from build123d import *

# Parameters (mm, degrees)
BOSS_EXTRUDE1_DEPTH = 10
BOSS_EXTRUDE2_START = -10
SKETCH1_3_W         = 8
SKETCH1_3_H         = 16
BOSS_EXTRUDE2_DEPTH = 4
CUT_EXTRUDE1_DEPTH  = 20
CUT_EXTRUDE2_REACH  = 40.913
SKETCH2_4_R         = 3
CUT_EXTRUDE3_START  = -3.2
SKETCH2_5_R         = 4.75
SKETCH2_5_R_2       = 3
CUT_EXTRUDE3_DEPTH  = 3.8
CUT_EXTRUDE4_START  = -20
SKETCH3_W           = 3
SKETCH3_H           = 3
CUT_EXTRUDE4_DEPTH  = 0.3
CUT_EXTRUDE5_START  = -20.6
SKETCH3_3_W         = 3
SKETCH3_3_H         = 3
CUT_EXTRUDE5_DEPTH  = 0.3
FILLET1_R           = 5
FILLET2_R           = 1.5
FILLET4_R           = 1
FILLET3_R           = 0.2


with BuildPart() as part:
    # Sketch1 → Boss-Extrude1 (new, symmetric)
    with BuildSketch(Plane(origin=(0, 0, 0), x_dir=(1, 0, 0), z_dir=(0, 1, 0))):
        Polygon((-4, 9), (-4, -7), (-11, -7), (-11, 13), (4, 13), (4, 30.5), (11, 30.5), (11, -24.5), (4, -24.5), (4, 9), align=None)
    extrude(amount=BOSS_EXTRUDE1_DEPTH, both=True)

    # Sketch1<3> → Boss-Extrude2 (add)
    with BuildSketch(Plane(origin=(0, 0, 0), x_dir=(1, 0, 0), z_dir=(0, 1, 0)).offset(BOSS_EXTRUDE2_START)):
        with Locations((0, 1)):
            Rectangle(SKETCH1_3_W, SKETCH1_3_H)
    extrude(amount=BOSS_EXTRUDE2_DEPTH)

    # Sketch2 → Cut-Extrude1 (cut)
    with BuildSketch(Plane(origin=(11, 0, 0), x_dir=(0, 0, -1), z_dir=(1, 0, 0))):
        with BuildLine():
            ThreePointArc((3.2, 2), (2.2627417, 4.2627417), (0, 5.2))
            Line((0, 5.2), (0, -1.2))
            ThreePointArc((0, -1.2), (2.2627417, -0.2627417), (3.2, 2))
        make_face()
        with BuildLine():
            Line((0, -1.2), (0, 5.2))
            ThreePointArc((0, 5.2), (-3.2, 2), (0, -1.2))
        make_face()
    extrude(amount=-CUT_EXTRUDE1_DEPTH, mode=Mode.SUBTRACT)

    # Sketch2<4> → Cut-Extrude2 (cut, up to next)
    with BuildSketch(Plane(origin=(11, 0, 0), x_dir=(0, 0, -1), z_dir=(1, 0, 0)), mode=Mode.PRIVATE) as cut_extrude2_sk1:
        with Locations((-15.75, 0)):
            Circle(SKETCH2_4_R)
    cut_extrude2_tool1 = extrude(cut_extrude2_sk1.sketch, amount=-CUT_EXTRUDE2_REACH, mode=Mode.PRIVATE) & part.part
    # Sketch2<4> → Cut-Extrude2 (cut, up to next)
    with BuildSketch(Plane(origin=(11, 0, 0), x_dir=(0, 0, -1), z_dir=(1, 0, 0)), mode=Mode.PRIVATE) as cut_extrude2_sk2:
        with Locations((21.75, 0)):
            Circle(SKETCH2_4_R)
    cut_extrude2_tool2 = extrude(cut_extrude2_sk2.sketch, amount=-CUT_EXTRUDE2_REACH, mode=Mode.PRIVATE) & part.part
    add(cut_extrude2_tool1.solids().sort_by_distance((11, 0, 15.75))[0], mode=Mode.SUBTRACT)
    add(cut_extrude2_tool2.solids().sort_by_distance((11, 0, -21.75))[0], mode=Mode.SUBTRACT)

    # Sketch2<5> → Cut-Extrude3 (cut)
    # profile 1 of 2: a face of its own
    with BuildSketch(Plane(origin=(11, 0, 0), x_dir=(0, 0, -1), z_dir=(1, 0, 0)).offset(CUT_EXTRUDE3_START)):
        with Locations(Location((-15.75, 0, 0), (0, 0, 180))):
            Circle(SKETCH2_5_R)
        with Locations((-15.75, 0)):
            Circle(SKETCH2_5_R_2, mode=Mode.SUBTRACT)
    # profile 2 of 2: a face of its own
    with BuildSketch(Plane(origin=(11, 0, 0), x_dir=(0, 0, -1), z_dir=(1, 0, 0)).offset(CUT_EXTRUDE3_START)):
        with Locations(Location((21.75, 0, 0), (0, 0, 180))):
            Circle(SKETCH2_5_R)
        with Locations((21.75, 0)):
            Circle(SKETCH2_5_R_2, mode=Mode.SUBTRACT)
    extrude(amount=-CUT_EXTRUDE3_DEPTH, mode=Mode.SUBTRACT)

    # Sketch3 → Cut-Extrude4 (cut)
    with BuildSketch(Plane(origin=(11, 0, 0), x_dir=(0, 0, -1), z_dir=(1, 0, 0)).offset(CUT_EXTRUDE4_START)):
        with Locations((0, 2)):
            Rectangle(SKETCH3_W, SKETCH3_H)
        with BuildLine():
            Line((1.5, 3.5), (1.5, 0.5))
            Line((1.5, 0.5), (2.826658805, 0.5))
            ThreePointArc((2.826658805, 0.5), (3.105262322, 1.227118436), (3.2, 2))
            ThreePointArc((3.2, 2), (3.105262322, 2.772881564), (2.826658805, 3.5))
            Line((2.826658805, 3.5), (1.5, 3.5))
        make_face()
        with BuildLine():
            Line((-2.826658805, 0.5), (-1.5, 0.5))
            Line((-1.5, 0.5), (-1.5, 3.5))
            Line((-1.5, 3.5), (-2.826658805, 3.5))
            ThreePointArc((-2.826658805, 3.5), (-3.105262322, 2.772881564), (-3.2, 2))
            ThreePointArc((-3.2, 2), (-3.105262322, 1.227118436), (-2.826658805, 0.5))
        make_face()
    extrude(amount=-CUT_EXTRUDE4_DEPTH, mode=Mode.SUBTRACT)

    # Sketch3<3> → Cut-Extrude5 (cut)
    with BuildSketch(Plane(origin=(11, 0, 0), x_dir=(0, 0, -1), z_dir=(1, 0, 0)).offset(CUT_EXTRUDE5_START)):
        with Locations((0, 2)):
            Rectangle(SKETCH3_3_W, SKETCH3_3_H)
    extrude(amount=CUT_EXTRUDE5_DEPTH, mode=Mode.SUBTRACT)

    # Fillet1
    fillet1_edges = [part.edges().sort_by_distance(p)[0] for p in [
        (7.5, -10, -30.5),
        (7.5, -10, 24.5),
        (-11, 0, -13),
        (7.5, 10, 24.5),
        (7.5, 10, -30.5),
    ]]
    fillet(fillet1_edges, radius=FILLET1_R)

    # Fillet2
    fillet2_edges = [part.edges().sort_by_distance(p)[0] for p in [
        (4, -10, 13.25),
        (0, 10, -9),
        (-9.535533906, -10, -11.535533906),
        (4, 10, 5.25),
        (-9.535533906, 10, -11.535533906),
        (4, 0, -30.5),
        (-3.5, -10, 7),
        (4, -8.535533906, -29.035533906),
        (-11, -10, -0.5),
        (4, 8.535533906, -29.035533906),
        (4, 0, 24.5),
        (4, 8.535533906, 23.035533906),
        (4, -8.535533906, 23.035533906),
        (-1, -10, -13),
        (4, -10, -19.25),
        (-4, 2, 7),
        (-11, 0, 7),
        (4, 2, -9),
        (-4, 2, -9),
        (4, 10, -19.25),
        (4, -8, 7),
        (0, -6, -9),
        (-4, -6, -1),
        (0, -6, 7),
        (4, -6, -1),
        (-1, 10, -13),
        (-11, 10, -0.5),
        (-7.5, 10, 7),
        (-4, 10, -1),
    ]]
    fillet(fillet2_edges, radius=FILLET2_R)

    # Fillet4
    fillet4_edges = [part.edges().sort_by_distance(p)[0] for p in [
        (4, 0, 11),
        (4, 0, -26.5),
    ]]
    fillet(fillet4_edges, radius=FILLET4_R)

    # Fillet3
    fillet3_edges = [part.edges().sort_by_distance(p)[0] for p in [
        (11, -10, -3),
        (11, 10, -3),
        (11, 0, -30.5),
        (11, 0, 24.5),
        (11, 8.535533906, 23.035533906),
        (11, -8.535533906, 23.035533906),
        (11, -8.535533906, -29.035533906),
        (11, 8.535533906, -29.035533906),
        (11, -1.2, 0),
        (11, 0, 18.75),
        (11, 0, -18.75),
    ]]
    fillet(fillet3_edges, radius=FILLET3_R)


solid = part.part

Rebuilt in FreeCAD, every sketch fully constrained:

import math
import FreeCAD as App
import Part
import Sketcher
Q = App.Units.Quantity


def edges_at(feature, points):
    """Names of the edges that pass closest to the given points."""
    edges = feature.Shape.Edges
    near = lambda p: min(range(len(edges)), key=lambda i: edges[i].distToShape(Part.Vertex(*p))[0])
    return sorted({f"Edge{near(p) + 1}" for p in points})

doc = App.newDocument("Part")
body = doc.addObject("PartDesign::Body", "Body")

# Sketch on XZ plane
sketch1 = doc.addObject("Sketcher::SketchObject", "Sketch")
body.addObject(sketch1)
sketch1.AttachmentSupport = (doc.XZ_Plane, [""])
sketch1.MapMode = "FlatFace"
sketch1.addGeometry(Part.LineSegment(App.Vector(-4, 7, 0), App.Vector(-4, -9, 0)), False)
sketch1.addGeometry(Part.LineSegment(App.Vector(-4, -9, 0), App.Vector(4, -9, 0)), False)
sketch1.addGeometry(Part.LineSegment(App.Vector(4, -9, 0), App.Vector(4, 24, 0)), False)
sketch1.addGeometry(Part.LineSegment(App.Vector(4, 24, 0), App.Vector(11, 24, 0)), False)
sketch1.addGeometry(Part.LineSegment(App.Vector(11, 24, 0), App.Vector(11, -30, 0)), False)
sketch1.addGeometry(Part.LineSegment(App.Vector(11, -30, 0), App.Vector(4, -30, 0)), False)
sketch1.addGeometry(Part.LineSegment(App.Vector(4, -30, 0), App.Vector(4, -13, 0)), False)
sketch1.addGeometry(Part.LineSegment(App.Vector(4, -13, 0), App.Vector(-11, -13, 0)), False)
sketch1.addGeometry(Part.LineSegment(App.Vector(-11, -13, 0), App.Vector(-11, 7, 0)), False)
sketch1.addGeometry(Part.LineSegment(App.Vector(-11, 7, 0), App.Vector(-4, 7, 0)), False)
sketch1.addConstraint(Sketcher.Constraint("Coincident", 0, 2, 1, 1))
sketch1.addConstraint(Sketcher.Constraint("Coincident", 1, 2, 2, 1))
sketch1.addConstraint(Sketcher.Constraint("Coincident", 2, 2, 3, 1))
sketch1.addConstraint(Sketcher.Constraint("Coincident", 3, 2, 4, 1))
sketch1.addConstraint(Sketcher.Constraint("Coincident", 4, 2, 5, 1))
sketch1.addConstraint(Sketcher.Constraint("Coincident", 5, 2, 6, 1))
sketch1.addConstraint(Sketcher.Constraint("Coincident", 6, 2, 7, 1))
sketch1.addConstraint(Sketcher.Constraint("Coincident", 7, 2, 8, 1))
sketch1.addConstraint(Sketcher.Constraint("Coincident", 8, 2, 9, 1))
sketch1.addConstraint(Sketcher.Constraint("Coincident", 9, 2, 0, 1))
sketch1.addConstraint(Sketcher.Constraint("Vertical", 0))
sketch1.addConstraint(Sketcher.Constraint("Horizontal", 1))
sketch1.addConstraint(Sketcher.Constraint("Vertical", 2))
sketch1.addConstraint(Sketcher.Constraint("Horizontal", 3))
sketch1.addConstraint(Sketcher.Constraint("Vertical", 4))
sketch1.addConstraint(Sketcher.Constraint("Horizontal", 5))
sketch1.addConstraint(Sketcher.Constraint("Vertical", 6))
sketch1.addConstraint(Sketcher.Constraint("Horizontal", 7))
sketch1.addConstraint(Sketcher.Constraint("Vertical", 8))
sketch1.addConstraint(Sketcher.Constraint("Horizontal", 9))
sketch1.addConstraint(Sketcher.Constraint("Vertical", 2, 2, 5, 2))
sketch1.addConstraint(Sketcher.Constraint("Equal", 5, 9))
sketch1.addConstraint(Sketcher.Constraint("DistanceX", 1, 1, 1, 2, Q("8 mm")))
sketch1.addConstraint(Sketcher.Constraint("DistanceX", 3, 1, 3, 2, Q("7 mm")))
sketch1.addConstraint(Sketcher.Constraint("DistanceY", 0, 2, 0, 1, Q("16 mm")))
sketch1.addConstraint(Sketcher.Constraint("DistanceY", 4, 2, 4, 1, Q("55 mm")))
sketch1.addConstraint(Sketcher.Constraint("DistanceY", 8, 1, 8, 2, Q("20 mm")))
sketch1.addConstraint(Sketcher.Constraint("DistanceY", 2, 1, 2, 2, Q("33.5 mm")))
sketch1.addConstraint(Sketcher.Constraint("DistanceX", 0, 2, -1, 1, Q("4 mm")))
sketch1.addConstraint(Sketcher.Constraint("DistanceY", 0, 2, -1, 1, Q("9 mm")))
pad1 = doc.addObject("PartDesign::Pad", "Pad")
body.addObject(pad1)
pad1.Profile = sketch1
pad1.Length = 20
pad1.Midplane = True

# Sketch on XZ plane
sketch2 = doc.addObject("Sketcher::SketchObject", "Sketch001")
body.addObject(sketch2)
sketch2.AttachmentSupport = (doc.XZ_Plane, [""])
sketch2.MapMode = "FlatFace"
sketch2.AttachmentOffset = App.Placement(App.Vector(0, 0, 10), App.Rotation())
sketch2.addGeometry(Part.LineSegment(App.Vector(-4, -9, 0), App.Vector(-4, 7, 0)), False)
sketch2.addGeometry(Part.LineSegment(App.Vector(-4, 7, 0), App.Vector(4, 7, 0)), False)
sketch2.addGeometry(Part.LineSegment(App.Vector(4, 7, 0), App.Vector(4, -9, 0)), False)
sketch2.addGeometry(Part.LineSegment(App.Vector(4, -9, 0), App.Vector(-4, -9, 0)), False)
sketch2.addConstraint(Sketcher.Constraint("Coincident", 0, 2, 1, 1))
sketch2.addConstraint(Sketcher.Constraint("Coincident", 1, 2, 2, 1))
sketch2.addConstraint(Sketcher.Constraint("Coincident", 2, 2, 3, 1))
sketch2.addConstraint(Sketcher.Constraint("Coincident", 3, 2, 0, 1))
sketch2.addConstraint(Sketcher.Constraint("Vertical", 0))
sketch2.addConstraint(Sketcher.Constraint("Horizontal", 1))
sketch2.addConstraint(Sketcher.Constraint("Vertical", 2))
sketch2.addConstraint(Sketcher.Constraint("Horizontal", 3))
sketch2.addConstraint(Sketcher.Constraint("DistanceX", 1, 1, 1, 2, Q("8 mm")))
sketch2.addConstraint(Sketcher.Constraint("DistanceY", 0, 1, 0, 2, Q("16 mm")))
sketch2.addConstraint(Sketcher.Constraint("DistanceX", 0, 2, -1, 1, Q("4 mm")))
sketch2.addConstraint(Sketcher.Constraint("DistanceY", -1, 1, 0, 2, Q("7 mm")))
pad2 = doc.addObject("PartDesign::Pad", "Pad001")
body.addObject(pad2)
pad2.Profile = sketch2
pad2.Length = 4
pad2.Reversed = True

# Sketch on YZ plane
sketch3 = doc.addObject("Sketcher::SketchObject", "Sketch002")
body.addObject(sketch3)
sketch3.AttachmentSupport = (doc.YZ_Plane, [""])
sketch3.MapMode = "FlatFace"
sketch3.AttachmentOffset = App.Placement(App.Vector(0, 0, 11), App.Rotation())
sketch3.addGeometry(Part.ArcOfCircle(Part.Circle(App.Vector(2, 0, 0), App.Vector(0, 0, 1), 3.2), math.radians(-90), math.radians(0)), False)
sketch3.addGeometry(Part.ArcOfCircle(Part.Circle(App.Vector(2, 0, 0), App.Vector(0, 0, 1), 3.2), math.radians(0), math.radians(180)), False)
sketch3.addGeometry(Part.ArcOfCircle(Part.Circle(App.Vector(2, 0, 0), App.Vector(0, 0, 1), 3.2), math.radians(180), math.radians(270)), False)
sketch3.addConstraint(Sketcher.Constraint("Tangent", 0, 2, 1, 1))
sketch3.addConstraint(Sketcher.Constraint("Tangent", 1, 2, 2, 1))
sketch3.addConstraint(Sketcher.Constraint("Tangent", 2, 2, 0, 1))
sketch3.addConstraint(Sketcher.Constraint("PointOnObject", 0, 3, -1))
sketch3.addConstraint(Sketcher.Constraint("PointOnObject", 0, 2, -1))
sketch3.addConstraint(Sketcher.Constraint("PointOnObject", 1, 2, -1))
sketch3.addConstraint(Sketcher.Constraint("Vertical", 1, 3, 2, 2))
sketch3.addConstraint(Sketcher.Constraint("Radius", 0, Q("3.2 mm")))
sketch3.addConstraint(Sketcher.Constraint("DistanceX", -1, 1, 0, 3, Q("2 mm")))
pocket1 = doc.addObject("PartDesign::Pocket", "Pocket")
body.addObject(pocket1)
pocket1.Profile = sketch3
pocket1.Length = 20

# Sketch on YZ plane
sketch4 = doc.addObject("Sketcher::SketchObject", "Sketch003")
body.addObject(sketch4)
sketch4.AttachmentSupport = (doc.YZ_Plane, [""])
sketch4.MapMode = "FlatFace"
sketch4.AttachmentOffset = App.Placement(App.Vector(0, 0, 11), App.Rotation())
sketch4.addGeometry(Part.Circle(App.Vector(0, 15.8, 0), App.Vector(0, 0, 1), 3), False)
sketch4.addConstraint(Sketcher.Constraint("PointOnObject", 0, 3, -2))
sketch4.addConstraint(Sketcher.Constraint("Diameter", 0, Q("6 mm")))
sketch4.addConstraint(Sketcher.Constraint("DistanceY", -1, 1, 0, 3, Q("15.75 mm")))
pocket2 = doc.addObject("PartDesign::Pocket", "Pocket001")
body.addObject(pocket2)
pocket2.Profile = sketch4
pocket2.Type = "UpToFirst"

# Sketch on YZ plane
sketch5 = doc.addObject("Sketcher::SketchObject", "Sketch004")
body.addObject(sketch5)
sketch5.AttachmentSupport = (doc.YZ_Plane, [""])
sketch5.MapMode = "FlatFace"
sketch5.AttachmentOffset = App.Placement(App.Vector(0, 0, 11), App.Rotation())
sketch5.addGeometry(Part.Circle(App.Vector(0, -21.8, 0), App.Vector(0, 0, 1), 3), False)
sketch5.addConstraint(Sketcher.Constraint("PointOnObject", 0, 3, -2))
sketch5.addConstraint(Sketcher.Constraint("Diameter", 0, Q("6 mm")))
sketch5.addConstraint(Sketcher.Constraint("DistanceY", 0, 3, -1, 1, Q("21.75 mm")))
pocket3 = doc.addObject("PartDesign::Pocket", "Pocket002")
body.addObject(pocket3)
pocket3.Profile = sketch5
pocket3.Type = "UpToFirst"

# Sketch on YZ plane
sketch6 = doc.addObject("Sketcher::SketchObject", "Sketch005")
body.addObject(sketch6)
sketch6.AttachmentSupport = (doc.YZ_Plane, [""])
sketch6.MapMode = "FlatFace"
sketch6.AttachmentOffset = App.Placement(App.Vector(0, 0, 7.8), App.Rotation())
sketch6.addGeometry(Part.Circle(App.Vector(0, 15.8, 0), App.Vector(0, 0, 1), 4.8), False)
sketch6.addGeometry(Part.Circle(App.Vector(0, 15.8, 0), App.Vector(0, 0, 1), 3), False)
sketch6.addGeometry(Part.Circle(App.Vector(0, -21.8, 0), App.Vector(0, 0, 1), 4.8), False)
sketch6.addGeometry(Part.Circle(App.Vector(0, -21.8, 0), App.Vector(0, 0, 1), 3), False)
sketch6.addConstraint(Sketcher.Constraint("Coincident", 1, 3, 0, 3))
sketch6.addConstraint(Sketcher.Constraint("Coincident", 3, 3, 2, 3))
sketch6.addConstraint(Sketcher.Constraint("Equal", 0, 2))
sketch6.addConstraint(Sketcher.Constraint("Equal", 1, 3))
sketch6.addConstraint(Sketcher.Constraint("PointOnObject", 0, 3, -2))
sketch6.addConstraint(Sketcher.Constraint("PointOnObject", 2, 3, -2))
sketch6.addConstraint(Sketcher.Constraint("Diameter", 1, Q("6 mm")))
sketch6.addConstraint(Sketcher.Constraint("Diameter", 0, Q("9.5 mm")))
sketch6.addConstraint(Sketcher.Constraint("DistanceY", 2, 3, 0, 3, Q("37.5 mm")))
sketch6.addConstraint(Sketcher.Constraint("DistanceY", -1, 1, 0, 3, Q("15.75 mm")))
pocket4 = doc.addObject("PartDesign::Pocket", "Pocket003")
body.addObject(pocket4)
pocket4.Profile = sketch6
pocket4.Length = 3.8

# Sketch on YZ plane
sketch7 = doc.addObject("Sketcher::SketchObject", "Sketch006")
body.addObject(sketch7)
sketch7.AttachmentSupport = (doc.YZ_Plane, [""])
sketch7.MapMode = "FlatFace"
sketch7.AttachmentOffset = App.Placement(App.Vector(0, 0, -9), App.Rotation())
sketch7.addGeometry(Part.ArcOfCircle(Part.Circle(App.Vector(2, 0, 0), App.Vector(0, 0, 1), 3.2), math.radians(-118), math.radians(-90)), False)
sketch7.addGeometry(Part.ArcOfCircle(Part.Circle(App.Vector(2, 0, 0), App.Vector(0, 0, 1), 3.2), math.radians(-90), math.radians(-62)), False)
sketch7.addGeometry(Part.LineSegment(App.Vector(3.5, -2.8, 0), App.Vector(3.5, 2.8, 0)), False)
sketch7.addGeometry(Part.ArcOfCircle(Part.Circle(App.Vector(2, 0, 0), App.Vector(0, 0, 1), 3.2), math.radians(62), math.radians(90)), False)
sketch7.addGeometry(Part.ArcOfCircle(Part.Circle(App.Vector(2, 0, 0), App.Vector(0, 0, 1), 3.2), math.radians(90), math.radians(118)), False)
sketch7.addGeometry(Part.LineSegment(App.Vector(0.5, 2.8, 0), App.Vector(0.5, -2.8, 0)), False)
sketch7.addConstraint(Sketcher.Constraint("Tangent", 0, 2, 1, 1))
sketch7.addConstraint(Sketcher.Constraint("Coincident", 1, 2, 2, 1))
sketch7.addConstraint(Sketcher.Constraint("Coincident", 2, 2, 3, 1))
sketch7.addConstraint(Sketcher.Constraint("Tangent", 3, 2, 4, 1))
sketch7.addConstraint(Sketcher.Constraint("Coincident", 4, 2, 5, 1))
sketch7.addConstraint(Sketcher.Constraint("Coincident", 5, 2, 0, 1))
sketch7.addConstraint(Sketcher.Constraint("Vertical", 2))
sketch7.addConstraint(Sketcher.Constraint("Vertical", 5))
sketch7.addConstraint(Sketcher.Constraint("Coincident", 3, 3, 0, 3))
sketch7.addConstraint(Sketcher.Constraint("Equal", 0, 1))
sketch7.addConstraint(Sketcher.Constraint("Equal", 1, 3))
sketch7.addConstraint(Sketcher.Constraint("Equal", 3, 4))
sketch7.addConstraint(Sketcher.Constraint("Symmetric", 0, 2, 3, 2, -1))
sketch7.addConstraint(Sketcher.Constraint("Horizontal", 2, 2, 4, 2))
sketch7.addConstraint(Sketcher.Constraint("Vertical", 4, 3, 0, 2))
sketch7.addConstraint(Sketcher.Constraint("Radius", 0, Q("3.2 mm")))
sketch7.addConstraint(Sketcher.Constraint("DistanceX", -1, 1, 0, 3, Q("2 mm")))
sketch7.addConstraint(Sketcher.Constraint("DistanceX", 4, 2, 2, 2, Q("3 mm")))
pocket5 = doc.addObject("PartDesign::Pocket", "Pocket004")
body.addObject(pocket5)
pocket5.Profile = sketch7
pocket5.Length = 0.3

# Sketch on YZ plane
sketch8 = doc.addObject("Sketcher::SketchObject", "Sketch007")
body.addObject(sketch8)
sketch8.AttachmentSupport = (doc.YZ_Plane, [""])
sketch8.MapMode = "FlatFace"
sketch8.AttachmentOffset = App.Placement(App.Vector(0, 0, -9.6), App.Rotation())
sketch8.addGeometry(Part.LineSegment(App.Vector(3.5, 1.5, 0), App.Vector(0.5, 1.5, 0)), False)
sketch8.addGeometry(Part.LineSegment(App.Vector(0.5, 1.5, 0), App.Vector(0.5, -1.5, 0)), False)
sketch8.addGeometry(Part.LineSegment(App.Vector(0.5, -1.5, 0), App.Vector(3.5, -1.5, 0)), False)
sketch8.addGeometry(Part.LineSegment(App.Vector(3.5, -1.5, 0), App.Vector(3.5, 1.5, 0)), False)
sketch8.addConstraint(Sketcher.Constraint("Coincident", 0, 2, 1, 1))
sketch8.addConstraint(Sketcher.Constraint("Coincident", 1, 2, 2, 1))
sketch8.addConstraint(Sketcher.Constraint("Coincident", 2, 2, 3, 1))
sketch8.addConstraint(Sketcher.Constraint("Coincident", 3, 2, 0, 1))
sketch8.addConstraint(Sketcher.Constraint("Horizontal", 0))
sketch8.addConstraint(Sketcher.Constraint("Vertical", 1))
sketch8.addConstraint(Sketcher.Constraint("Horizontal", 2))
sketch8.addConstraint(Sketcher.Constraint("Vertical", 3))
sketch8.addConstraint(Sketcher.Constraint("Equal", 2, 1))
sketch8.addConstraint(Sketcher.Constraint("DistanceX", 0, 2, 0, 1, Q("3 mm")))
sketch8.addConstraint(Sketcher.Constraint("DistanceX", -1, 1, 0, 2, Q("0.5 mm")))
sketch8.addConstraint(Sketcher.Constraint("DistanceY", -1, 1, 0, 2, Q("1.5 mm")))
pocket6 = doc.addObject("PartDesign::Pocket", "Pocket005")
body.addObject(pocket6)
pocket6.Profile = sketch8
pocket6.Length = 0.3
pocket6.Reversed = True
doc.recompute()

fillet = doc.addObject("PartDesign::Fillet", "Fillet")
body.addObject(fillet)
fillet.Base = (pocket6, edges_at(pocket6, [
    (7.5, -10, -30.5),
    (7.5, -10, 24.5),
    (-11, 0, -13),
    (7.5, 10, 24.5),
    (7.5, 10, -30.5),
]))
fillet.Radius = 5
doc.recompute()

fillet2 = doc.addObject("PartDesign::Fillet", "Fillet001")
body.addObject(fillet2)
fillet2.Base = (fillet, edges_at(fillet, [
    (4, -10, 13.25),
    (0, 10, -9),
    (-9.536, -10, -11.536),
    (4, 10, 5.25),
    (-9.536, 10, -11.536),
    (4, 0, -30.5),
    (-3.5, -10, 7),
    (4, -8.536, -29.036),
    (-11, -10, -0.5),
    (4, 8.536, -29.036),
    (4, 0, 24.5),
    (4, 8.536, 23.036),
    (4, -8.536, 23.036),
    (-1, -10, -13),
    (4, -10, -19.25),
    (-4, 2, 7),
    (-11, 0, 7),
    (4, 2, -9),
    (-4, 2, -9),
    (4, 10, -19.25),
    (4, -8, 7),
    (0, -6, -9),
    (-4, -6, -1),
    (0, -6, 7),
    (4, -6, -1),
    (-1, 10, -13),
    (-11, 10, -0.5),
    (-7.5, 10, 7),
    (-4, 10, -1),
]))
fillet2.Radius = 1.5
doc.recompute()

fillet3 = doc.addObject("PartDesign::Fillet", "Fillet002")
body.addObject(fillet3)
fillet3.Base = (fillet2, edges_at(fillet2, [(4, 0, 11), (4, 0, -26.5)]))
fillet3.Radius = 1
doc.recompute()

fillet4 = doc.addObject("PartDesign::Fillet", "Fillet003")
body.addObject(fillet4)
fillet4.Base = (fillet3, edges_at(fillet3, [
    (11, -10, -3),
    (11, 10, -3),
    (11, 0, -30.5),
    (11, 0, 24.5),
    (11, 8.536, 23.036),
    (11, -8.536, 23.036),
    (11, -8.536, -29.036),
    (11, 8.536, -29.036),
    (11, -0.263, -2.263),
    (11, 0, 18.75),
    (11, 0, -18.75),
]))
fillet4.Radius = 0.2

doc.recompute()
